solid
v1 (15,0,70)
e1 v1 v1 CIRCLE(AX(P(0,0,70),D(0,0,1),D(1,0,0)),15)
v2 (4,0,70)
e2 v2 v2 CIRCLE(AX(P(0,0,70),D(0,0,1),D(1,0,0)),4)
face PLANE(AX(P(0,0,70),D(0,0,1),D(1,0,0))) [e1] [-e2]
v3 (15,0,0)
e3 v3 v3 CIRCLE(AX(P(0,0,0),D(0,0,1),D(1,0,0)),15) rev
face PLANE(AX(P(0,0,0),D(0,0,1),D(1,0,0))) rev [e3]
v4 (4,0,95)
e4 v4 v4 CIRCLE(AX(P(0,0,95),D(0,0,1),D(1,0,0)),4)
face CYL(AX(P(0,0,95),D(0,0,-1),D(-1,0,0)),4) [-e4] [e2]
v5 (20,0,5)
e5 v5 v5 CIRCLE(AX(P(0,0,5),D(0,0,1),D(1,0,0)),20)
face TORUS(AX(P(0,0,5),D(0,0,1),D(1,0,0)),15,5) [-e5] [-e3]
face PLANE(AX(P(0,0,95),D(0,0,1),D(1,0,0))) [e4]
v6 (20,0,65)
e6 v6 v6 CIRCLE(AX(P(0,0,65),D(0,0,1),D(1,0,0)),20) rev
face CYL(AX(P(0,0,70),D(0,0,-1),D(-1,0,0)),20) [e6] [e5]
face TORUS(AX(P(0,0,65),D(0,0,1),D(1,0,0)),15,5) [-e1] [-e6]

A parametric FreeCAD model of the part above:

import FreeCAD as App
import Part
import Sketcher


def edges_at(feature, points):
    """Names of the edges that pass closest to the given points."""
    edges = feature.Shape.Edges
    near = lambda p: min(range(len(edges)), key=lambda i: edges[i].distToShape(Part.Vertex(*p))[0])
    return sorted({f"Edge{near(p) + 1}" for p in points})

doc = App.newDocument("Part")
body = doc.addObject("PartDesign::Body", "Body")

sketch1 = body.newObject("Sketcher::SketchObject", "Sketch")
sketch1.AttachmentSupport = (doc.getObject("XY_Plane"), [""])
sketch1.MapMode = "FlatFace"
sketch1.addGeometry(Part.Circle(App.Vector(0, 0, 0), App.Vector(0, 0, 1), 20), False)
sketch1.addConstraint(Sketcher.Constraint("Coincident", 0, 3, -1, 1))
sketch1.addConstraint(Sketcher.Constraint("Diameter", 0, 40.0))
pad1 = body.newObject("PartDesign::Pad", "Pad")
pad1.Profile = sketch1
pad1.Length = 70

sketch2 = body.newObject("Sketcher::SketchObject", "Sketch001")
sketch2.AttachmentSupport = (doc.getObject("XY_Plane"), [""])
sketch2.MapMode = "FlatFace"
sketch2.AttachmentOffset = App.Placement(App.Vector(0, 0, 70), App.Rotation())
sketch2.addGeometry(Part.Circle(App.Vector(0, 0, 0), App.Vector(0, 0, 1), 4), False)
sketch2.addConstraint(Sketcher.Constraint("Coincident", 0, 3, -1, 1))
sketch2.addConstraint(Sketcher.Constraint("Diameter", 0, 8.0))
pad2 = body.newObject("PartDesign::Pad", "Pad001")
pad2.Profile = sketch2
pad2.Length = 25
doc.recompute()

fillet = body.newObject("PartDesign::Fillet", "Fillet")
fillet.Base = (pad2, edges_at(pad2, [(-20, 0, 0), (-20, 0, 70)]))
fillet.Radius = 5

doc.recompute()
